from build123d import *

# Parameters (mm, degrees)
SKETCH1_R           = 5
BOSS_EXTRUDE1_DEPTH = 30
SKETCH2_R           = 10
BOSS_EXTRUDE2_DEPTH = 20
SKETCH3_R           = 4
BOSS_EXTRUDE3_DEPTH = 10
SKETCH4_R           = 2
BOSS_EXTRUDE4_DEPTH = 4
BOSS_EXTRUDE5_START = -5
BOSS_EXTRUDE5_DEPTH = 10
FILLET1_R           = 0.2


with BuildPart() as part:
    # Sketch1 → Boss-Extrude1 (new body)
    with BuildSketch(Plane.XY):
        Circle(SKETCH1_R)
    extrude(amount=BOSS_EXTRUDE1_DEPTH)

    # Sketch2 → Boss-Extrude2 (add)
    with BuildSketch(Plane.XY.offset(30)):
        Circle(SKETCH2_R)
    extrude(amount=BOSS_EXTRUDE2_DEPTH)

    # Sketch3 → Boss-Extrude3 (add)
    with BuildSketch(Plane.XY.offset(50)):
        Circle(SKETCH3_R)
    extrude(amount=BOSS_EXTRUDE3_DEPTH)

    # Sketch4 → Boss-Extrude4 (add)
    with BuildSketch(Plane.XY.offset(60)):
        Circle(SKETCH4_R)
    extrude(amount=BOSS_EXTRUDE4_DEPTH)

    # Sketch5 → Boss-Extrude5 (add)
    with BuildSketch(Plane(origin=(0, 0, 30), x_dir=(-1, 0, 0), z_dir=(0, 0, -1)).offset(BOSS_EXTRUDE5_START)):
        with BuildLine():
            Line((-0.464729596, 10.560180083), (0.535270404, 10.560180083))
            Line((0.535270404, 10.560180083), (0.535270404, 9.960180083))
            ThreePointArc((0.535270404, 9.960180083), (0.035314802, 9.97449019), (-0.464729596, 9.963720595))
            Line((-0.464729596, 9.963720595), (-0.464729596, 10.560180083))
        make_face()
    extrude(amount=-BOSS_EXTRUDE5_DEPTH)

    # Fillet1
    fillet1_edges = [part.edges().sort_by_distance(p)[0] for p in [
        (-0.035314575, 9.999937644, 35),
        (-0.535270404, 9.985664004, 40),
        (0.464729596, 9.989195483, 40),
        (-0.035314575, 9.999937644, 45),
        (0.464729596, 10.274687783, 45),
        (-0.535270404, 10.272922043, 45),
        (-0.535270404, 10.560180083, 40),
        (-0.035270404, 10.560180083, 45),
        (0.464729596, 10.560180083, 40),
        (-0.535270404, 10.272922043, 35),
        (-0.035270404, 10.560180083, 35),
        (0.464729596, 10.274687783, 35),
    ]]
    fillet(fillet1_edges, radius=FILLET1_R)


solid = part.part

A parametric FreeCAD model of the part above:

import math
import FreeCAD as App
import Part
import Sketcher
from FreeCAD import Vector


def edges_at(feature, points):
    """Names of the edges that pass closest to the given points."""
    edges = feature.Shape.Edges
    near = lambda p: min(range(len(edges)), key=lambda i: edges[i].distToShape(Part.Vertex(*p))[0])
    return sorted({f"Edge{near(p) + 1}" for p in points})

doc = App.newDocument("Part")
body = doc.addObject("PartDesign::Body", "Body")

# Sketch on XY plane
sketch1 = doc.addObject("Sketcher::SketchObject", "Sketch")
body.addObject(sketch1)
sketch1.AttachmentSupport = (doc.XY_Plane, [""])
sketch1.MapMode = "FlatFace"
sketch1.addGeometry(Part.Circle(Vector(0, 0, 0), Vector(0, 0, 1), 5), False)
sketch1.addConstraint([
    Sketcher.Constraint("Coincident", 0, 3, -1, 1),
    Sketcher.Constraint("Diameter", 0, 10.0),
])
pad1 = doc.addObject("PartDesign::Pad", "Pad")
body.addObject(pad1)
pad1.Profile = sketch1
pad1.Length = 30

# Sketch on XY plane
sketch2 = doc.addObject("Sketcher::SketchObject", "Sketch001")
body.addObject(sketch2)
sketch2.AttachmentSupport = (doc.XY_Plane, [""])
sketch2.MapMode = "FlatFace"
sketch2.AttachmentOffset = App.Placement(Vector(0, 0, 30), App.Rotation())
sketch2.addGeometry(Part.Circle(Vector(0, 0, 0), Vector(0, 0, 1), 10), False)
sketch2.addConstraint([
    Sketcher.Constraint("Coincident", 0, 3, -1, 1),
    Sketcher.Constraint("Diameter", 0, 20.0),
])
pad2 = doc.addObject("PartDesign::Pad", "Pad001")
body.addObject(pad2)
pad2.Profile = sketch2
pad2.Length = 20

# Sketch on XY plane
sketch3 = doc.addObject("Sketcher::SketchObject", "Sketch002")
body.addObject(sketch3)
sketch3.AttachmentSupport = (doc.XY_Plane, [""])
sketch3.MapMode = "FlatFace"
sketch3.AttachmentOffset = App.Placement(Vector(0, 0, 50), App.Rotation())
sketch3.addGeometry(Part.Circle(Vector(0, 0, 0), Vector(0, 0, 1), 4), False)
sketch3.addConstraint([
    Sketcher.Constraint("Coincident", 0, 3, -1, 1),
    Sketcher.Constraint("Diameter", 0, 8.0),
])
pad3 = doc.addObject("PartDesign::Pad", "Pad002")
body.addObject(pad3)
pad3.Profile = sketch3
pad3.Length = 10

# Sketch on XY plane
sketch4 = doc.addObject("Sketcher::SketchObject", "Sketch003")
body.addObject(sketch4)
sketch4.AttachmentSupport = (doc.XY_Plane, [""])
sketch4.MapMode = "FlatFace"
sketch4.AttachmentOffset = App.Placement(Vector(0, 0, 60), App.Rotation())
sketch4.addGeometry(Part.Circle(Vector(0, 0, 0), Vector(0, 0, 1), 2), False)
sketch4.addConstraint([
    Sketcher.Constraint("Coincident", 0, 3, -1, 1),
    Sketcher.Constraint("Diameter", 0, 4.0),
])
pad4 = doc.addObject("PartDesign::Pad", "Pad003")
body.addObject(pad4)
pad4.Profile = sketch4
pad4.Length = 4

# Sketch on XY plane
sketch5 = doc.addObject("Sketcher::SketchObject", "Sketch004")
body.addObject(sketch5)
sketch5.AttachmentSupport = (doc.XY_Plane, [""])
sketch5.MapMode = "FlatFace"
sketch5.AttachmentOffset = App.Placement(Vector(0, 0, 35), App.Rotation())
sketch5.addGeometry([
    Part.LineSegment(Vector(-0.5, 10.6, 0), Vector(0.5, 10.6, 0)),
    Part.LineSegment(Vector(0.5, 10.6, 0), Vector(0.5, 10, 0)),
    Part.ArcOfCircle(Part.Circle(Vector(0, 0, 0), Vector(0, 0, 1), 10), math.radians(87.33), math.radians(93.08)),
    Part.LineSegment(Vector(-0.5, 10, 0), Vector(-0.5, 10.6, 0)),
], False)
sketch5.addConstraint([
    Sketcher.Constraint("Coincident", 0, 2, 1, 1),
    Sketcher.Constraint("Coincident", 1, 2, 2, 1),
    Sketcher.Constraint("Coincident", 2, 2, 3, 1),
    Sketcher.Constraint("Coincident", 3, 2, 0, 1),
    Sketcher.Constraint("Horizontal", 0),
    Sketcher.Constraint("Vertical", 1),
    Sketcher.Constraint("Vertical", 3),
    Sketcher.Constraint("Coincident", 2, 3, -1, 1),
    Sketcher.Constraint("DistanceX", 0, 1, 0, 2, 1.0),
    Sketcher.Constraint("DistanceY", 3, 1, 3, 2, 0.6),
    Sketcher.Constraint("Radius", 2, 9.974553),
    Sketcher.Constraint("DistanceY", 1, 2, 1, 1, 0.596459),
])
pad5 = doc.addObject("PartDesign::Pad", "Pad004")
body.addObject(pad5)
pad5.Profile = sketch5
pad5.Length = 10
doc.recompute()

fillet = doc.addObject("PartDesign::Fillet", "Fillet")
body.addObject(fillet)
fillet.Base = (pad5, edges_at(pad5, [
    (-0.035, 10, 35),
    (-0.535, 9.986, 40),
    (0.465, 9.989, 40),
    (-0.035, 10, 45),
    (0.465, 10.275, 45),
    (-0.535, 10.273, 45),
    (-0.535, 10.56, 40),
    (-0.035, 10.56, 45),
    (0.465, 10.56, 40),
    (-0.535, 10.273, 35),
    (-0.035, 10.56, 35),
    (0.465, 10.275, 35),
]))
fillet.Radius = 0.2

doc.recompute()
